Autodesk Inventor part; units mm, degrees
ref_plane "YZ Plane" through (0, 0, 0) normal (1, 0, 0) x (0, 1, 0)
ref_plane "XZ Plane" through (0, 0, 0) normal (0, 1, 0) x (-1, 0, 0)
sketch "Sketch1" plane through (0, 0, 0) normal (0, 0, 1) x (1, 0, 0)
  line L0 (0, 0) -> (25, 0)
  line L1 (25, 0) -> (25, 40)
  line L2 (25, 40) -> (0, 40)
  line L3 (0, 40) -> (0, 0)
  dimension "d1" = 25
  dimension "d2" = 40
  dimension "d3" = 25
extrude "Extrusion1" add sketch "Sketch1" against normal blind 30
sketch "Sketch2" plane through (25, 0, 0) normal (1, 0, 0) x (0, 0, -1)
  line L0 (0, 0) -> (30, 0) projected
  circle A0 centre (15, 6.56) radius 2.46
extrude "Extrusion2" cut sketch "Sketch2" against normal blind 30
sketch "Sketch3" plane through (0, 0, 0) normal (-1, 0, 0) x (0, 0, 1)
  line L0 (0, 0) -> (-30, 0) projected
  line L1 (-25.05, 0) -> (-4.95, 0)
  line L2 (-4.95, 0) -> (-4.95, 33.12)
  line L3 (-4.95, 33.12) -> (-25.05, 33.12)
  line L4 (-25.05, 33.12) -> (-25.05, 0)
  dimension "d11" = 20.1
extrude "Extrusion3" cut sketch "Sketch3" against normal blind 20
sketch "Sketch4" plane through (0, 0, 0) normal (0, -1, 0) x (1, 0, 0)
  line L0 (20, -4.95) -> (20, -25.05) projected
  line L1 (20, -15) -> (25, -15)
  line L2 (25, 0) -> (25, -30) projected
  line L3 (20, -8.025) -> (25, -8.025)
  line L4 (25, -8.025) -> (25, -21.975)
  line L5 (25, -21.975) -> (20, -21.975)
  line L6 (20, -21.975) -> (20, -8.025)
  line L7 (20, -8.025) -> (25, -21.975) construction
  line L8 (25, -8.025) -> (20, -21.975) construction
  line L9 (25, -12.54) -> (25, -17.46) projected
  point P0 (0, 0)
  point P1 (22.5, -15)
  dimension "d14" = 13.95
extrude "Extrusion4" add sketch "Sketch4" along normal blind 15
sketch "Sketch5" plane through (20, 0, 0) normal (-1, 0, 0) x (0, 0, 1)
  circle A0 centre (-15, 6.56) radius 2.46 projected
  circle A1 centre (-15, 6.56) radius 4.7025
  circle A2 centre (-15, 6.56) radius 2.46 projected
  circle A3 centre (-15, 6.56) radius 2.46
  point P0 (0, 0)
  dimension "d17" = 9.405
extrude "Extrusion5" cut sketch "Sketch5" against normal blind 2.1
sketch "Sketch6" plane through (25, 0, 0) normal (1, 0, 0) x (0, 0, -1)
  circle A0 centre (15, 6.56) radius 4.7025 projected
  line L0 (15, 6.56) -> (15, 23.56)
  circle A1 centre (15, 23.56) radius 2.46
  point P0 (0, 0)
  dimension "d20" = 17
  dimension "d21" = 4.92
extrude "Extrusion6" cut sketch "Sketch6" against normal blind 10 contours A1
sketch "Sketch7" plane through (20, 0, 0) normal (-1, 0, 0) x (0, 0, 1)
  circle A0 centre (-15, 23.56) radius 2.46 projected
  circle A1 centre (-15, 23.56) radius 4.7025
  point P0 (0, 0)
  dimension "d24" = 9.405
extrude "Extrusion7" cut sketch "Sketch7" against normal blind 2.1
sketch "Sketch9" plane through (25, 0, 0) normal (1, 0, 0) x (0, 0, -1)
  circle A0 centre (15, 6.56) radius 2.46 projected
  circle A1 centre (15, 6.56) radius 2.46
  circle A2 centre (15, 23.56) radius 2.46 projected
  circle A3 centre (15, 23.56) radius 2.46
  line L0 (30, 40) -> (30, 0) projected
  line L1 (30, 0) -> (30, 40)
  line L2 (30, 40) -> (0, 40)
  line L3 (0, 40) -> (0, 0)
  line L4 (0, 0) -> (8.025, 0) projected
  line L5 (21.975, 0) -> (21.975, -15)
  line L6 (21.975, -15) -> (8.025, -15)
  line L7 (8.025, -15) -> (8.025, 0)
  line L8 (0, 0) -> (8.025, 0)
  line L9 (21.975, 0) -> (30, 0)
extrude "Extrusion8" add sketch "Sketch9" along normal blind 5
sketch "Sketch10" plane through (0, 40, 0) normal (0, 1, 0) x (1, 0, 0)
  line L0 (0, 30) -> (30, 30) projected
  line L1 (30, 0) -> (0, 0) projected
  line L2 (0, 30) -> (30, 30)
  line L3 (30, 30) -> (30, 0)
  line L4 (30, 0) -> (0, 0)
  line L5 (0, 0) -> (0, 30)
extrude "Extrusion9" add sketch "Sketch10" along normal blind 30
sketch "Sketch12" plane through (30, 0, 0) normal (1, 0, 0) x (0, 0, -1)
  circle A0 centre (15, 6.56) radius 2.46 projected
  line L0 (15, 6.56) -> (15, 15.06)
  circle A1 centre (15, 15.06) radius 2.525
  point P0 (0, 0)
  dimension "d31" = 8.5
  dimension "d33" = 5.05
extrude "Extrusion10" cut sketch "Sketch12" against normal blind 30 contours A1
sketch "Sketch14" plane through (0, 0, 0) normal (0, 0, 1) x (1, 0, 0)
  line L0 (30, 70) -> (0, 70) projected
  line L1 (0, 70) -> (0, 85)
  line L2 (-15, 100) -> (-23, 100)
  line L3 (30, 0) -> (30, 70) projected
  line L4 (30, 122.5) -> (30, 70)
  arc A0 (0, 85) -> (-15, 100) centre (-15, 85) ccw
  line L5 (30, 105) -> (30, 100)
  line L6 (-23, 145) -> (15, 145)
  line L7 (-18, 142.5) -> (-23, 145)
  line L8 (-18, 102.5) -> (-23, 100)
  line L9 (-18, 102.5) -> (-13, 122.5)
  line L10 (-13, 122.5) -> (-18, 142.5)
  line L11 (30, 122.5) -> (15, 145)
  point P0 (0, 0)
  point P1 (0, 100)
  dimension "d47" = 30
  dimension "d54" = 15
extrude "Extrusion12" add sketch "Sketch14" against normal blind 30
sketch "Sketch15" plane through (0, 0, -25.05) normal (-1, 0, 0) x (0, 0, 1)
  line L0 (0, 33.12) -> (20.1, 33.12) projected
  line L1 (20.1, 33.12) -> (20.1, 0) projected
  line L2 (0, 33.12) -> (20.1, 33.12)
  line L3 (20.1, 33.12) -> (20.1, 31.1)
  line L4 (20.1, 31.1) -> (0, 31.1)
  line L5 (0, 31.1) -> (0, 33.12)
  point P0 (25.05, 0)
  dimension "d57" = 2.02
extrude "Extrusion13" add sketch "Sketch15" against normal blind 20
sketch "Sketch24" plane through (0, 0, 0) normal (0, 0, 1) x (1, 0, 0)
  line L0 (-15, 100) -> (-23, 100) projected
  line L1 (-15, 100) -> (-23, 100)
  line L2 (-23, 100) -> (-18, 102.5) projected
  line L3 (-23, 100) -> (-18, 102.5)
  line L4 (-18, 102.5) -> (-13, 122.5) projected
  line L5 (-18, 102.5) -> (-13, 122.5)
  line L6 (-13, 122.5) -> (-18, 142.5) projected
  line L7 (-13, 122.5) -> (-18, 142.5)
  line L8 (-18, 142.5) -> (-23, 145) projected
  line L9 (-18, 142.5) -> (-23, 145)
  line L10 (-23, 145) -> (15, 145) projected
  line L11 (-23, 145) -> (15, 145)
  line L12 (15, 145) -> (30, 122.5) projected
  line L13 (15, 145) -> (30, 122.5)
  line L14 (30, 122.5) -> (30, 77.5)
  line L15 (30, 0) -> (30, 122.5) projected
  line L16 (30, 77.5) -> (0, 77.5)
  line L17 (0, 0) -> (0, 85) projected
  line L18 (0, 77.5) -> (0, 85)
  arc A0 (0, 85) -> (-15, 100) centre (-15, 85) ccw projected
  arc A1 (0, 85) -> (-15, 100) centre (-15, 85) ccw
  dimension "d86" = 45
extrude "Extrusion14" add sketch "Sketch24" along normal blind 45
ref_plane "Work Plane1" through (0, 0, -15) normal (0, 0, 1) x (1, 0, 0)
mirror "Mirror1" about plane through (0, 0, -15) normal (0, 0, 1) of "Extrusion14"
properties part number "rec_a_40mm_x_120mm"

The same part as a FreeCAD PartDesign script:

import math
import FreeCAD as App
import Part
import Sketcher

V = App.Vector
Q = App.Units.Quantity


def add_polygon(sketch, points):
    """Adds a closed chain of lines whose ends are joined by coincident constraints."""
    first, n = sketch.GeometryCount, len(points)
    for a, b in zip(points, points[1:] + points[:1]):
        sketch.addGeometry(Part.LineSegment(App.Vector(*a, 0), App.Vector(*b, 0)), False)
    for i in range(n):
        sketch.addConstraint(Sketcher.Constraint("Coincident", first + i, 2, first + (i + 1) % n, 1))

doc = App.newDocument("Part")
body = doc.addObject("PartDesign::Body", "Body")

# Sketch on XY plane
sketch1 = body.newObject("Sketcher::SketchObject", "Sketch")
sketch1.AttachmentSupport = (doc.getObject("XY_Plane"), [""])
sketch1.MapMode = "FlatFace"
add_polygon(sketch1, [(0, 40), (0, 0), (25, 0), (25, 40)])  # lines 0-3
sketch1.addConstraint(Sketcher.Constraint("Vertical", 0))
sketch1.addConstraint(Sketcher.Constraint("Horizontal", 1))
sketch1.addConstraint(Sketcher.Constraint("Vertical", 2))
sketch1.addConstraint(Sketcher.Constraint("Horizontal", 3))
sketch1.addConstraint(Sketcher.Constraint("Coincident", 0, 2, -1, 1))
sketch1.addConstraint(Sketcher.Constraint("DistanceX", 1, 1, 1, 2, Q("25 mm")))
sketch1.addConstraint(Sketcher.Constraint("DistanceY", 0, 2, 0, 1, Q("40 mm")))
pad1 = body.newObject("PartDesign::Pad", "Pad")
pad1.Profile = sketch1
pad1.Length = 30
pad1.Reversed = True

# Sketch on YZ plane
sketch2 = body.newObject("Sketcher::SketchObject", "Sketch001")
sketch2.AttachmentSupport = (doc.getObject("YZ_Plane"), [""])
sketch2.MapMode = "FlatFace"
sketch2.AttachmentOffset = App.Placement(V(0, 0, 25), App.Rotation())
sketch2.addGeometry(Part.Circle(V(6.6, -15, 0), V(0, 0, 1), 2.5), False)
sketch2.addConstraint(Sketcher.Constraint("Diameter", 0, Q("4.92 mm")))
sketch2.addConstraint(Sketcher.Constraint("DistanceY", 0, 3, -1, 1, Q("15 mm")))
sketch2.addConstraint(Sketcher.Constraint("DistanceX", -1, 1, 0, 3, Q("6.56 mm")))
pocket1 = body.newObject("PartDesign::Pocket", "Pocket")
pocket1.Profile = sketch2
pocket1.Length = 30

# Sketch on YZ plane
sketch3 = body.newObject("Sketcher::SketchObject", "Sketch002")
sketch3.AttachmentSupport = (doc.getObject("YZ_Plane"), [""])
sketch3.MapMode = "FlatFace"
add_polygon(sketch3, [(0, -25), (0, -5), (33, -5), (33, -25)])  # lines 0-3
sketch3.addConstraint(Sketcher.Constraint("Vertical", 0))
sketch3.addConstraint(Sketcher.Constraint("Horizontal", 1))
sketch3.addConstraint(Sketcher.Constraint("Vertical", 2))
sketch3.addConstraint(Sketcher.Constraint("Horizontal", 3))
sketch3.addConstraint(Sketcher.Constraint("PointOnObject", 0, 2, -2))
sketch3.addConstraint(Sketcher.Constraint("DistanceY", 0, 1, 0, 2, Q("20.1 mm")))
sketch3.addConstraint(Sketcher.Constraint("DistanceX", 1, 1, 1, 2, Q("33.12 mm")))
sketch3.addConstraint(Sketcher.Constraint("DistanceY", 0, 2, -1, 1, Q("4.95 mm")))
pocket2 = body.newObject("PartDesign::Pocket", "Pocket001")
pocket2.Profile = sketch3
pocket2.Length = 20
pocket2.Reversed = True

# Sketch on XZ plane
sketch4 = body.newObject("Sketcher::SketchObject", "Sketch003")
sketch4.AttachmentSupport = (doc.getObject("XZ_Plane"), [""])
sketch4.MapMode = "FlatFace"
add_polygon(sketch4, [(25, -8), (20, -8), (20, -22), (25, -22)])  # lines 0-3
sketch4.addConstraint(Sketcher.Constraint("Horizontal", 0))
sketch4.addConstraint(Sketcher.Constraint("Vertical", 1))
sketch4.addConstraint(Sketcher.Constraint("Horizontal", 2))
sketch4.addConstraint(Sketcher.Constraint("Vertical", 3))
sketch4.addConstraint(Sketcher.Constraint("DistanceY", 1, 2, 1, 1, Q("13.95 mm")))
sketch4.addConstraint(Sketcher.Constraint("DistanceX", 0, 2, 0, 1, Q("5 mm")))
sketch4.addConstraint(Sketcher.Constraint("DistanceX", -1, 1, 0, 2, Q("20 mm")))
sketch4.addConstraint(Sketcher.Constraint("DistanceY", 0, 2, -1, 1, Q("8.025 mm")))
pad2 = body.newObject("PartDesign::Pad", "Pad001")
pad2.Profile = sketch4
pad2.Length = 15

# Sketch on YZ plane
sketch5 = body.newObject("Sketcher::SketchObject", "Sketch004")
sketch5.AttachmentSupport = (doc.getObject("YZ_Plane"), [""])
sketch5.MapMode = "FlatFace"
sketch5.AttachmentOffset = App.Placement(V(0, 0, 20), App.Rotation())
sketch5.addGeometry(Part.Circle(V(6.6, -15, 0), V(0, 0, 1), 4.7), False)
sketch5.addGeometry(Part.Circle(V(6.6, -15, 0), V(0, 0, 1), 2.5), False)
sketch5.addConstraint(Sketcher.Constraint("Coincident", 1, 3, 0, 3))
sketch5.addConstraint(Sketcher.Constraint("Diameter", 0, Q("9.405 mm")))
sketch5.addConstraint(Sketcher.Constraint("Diameter", 1, Q("4.92 mm")))
sketch5.addConstraint(Sketcher.Constraint("DistanceY", 0, 3, -1, 1, Q("15 mm")))
sketch5.addConstraint(Sketcher.Constraint("DistanceX", -1, 1, 0, 3, Q("6.56 mm")))
pocket3 = body.newObject("PartDesign::Pocket", "Pocket002")
pocket3.Profile = sketch5
pocket3.Length = 2.1
pocket3.Reversed = True

# Sketch on YZ plane
sketch6 = body.newObject("Sketcher::SketchObject", "Sketch005")
sketch6.AttachmentSupport = (doc.getObject("YZ_Plane"), [""])
sketch6.MapMode = "FlatFace"
sketch6.AttachmentOffset = App.Placement(V(0, 0, 25), App.Rotation())
sketch6.addGeometry(Part.Circle(V(23.6, -15, 0), V(0, 0, 1), 2.5), False)
sketch6.addConstraint(Sketcher.Constraint("Diameter", 0, Q("4.92 mm")))
sketch6.addConstraint(Sketcher.Constraint("DistanceY", 0, 3, -1, 1, Q("15 mm")))
sketch6.addConstraint(Sketcher.Constraint("DistanceX", -1, 1, 0, 3, Q("23.56 mm")))
pocket4 = body.newObject("PartDesign::Pocket", "Pocket003")
pocket4.Profile = sketch6
pocket4.Length = 10

# Sketch on YZ plane
sketch7 = body.newObject("Sketcher::SketchObject", "Sketch006")
sketch7.AttachmentSupport = (doc.getObject("YZ_Plane"), [""])
sketch7.MapMode = "FlatFace"
sketch7.AttachmentOffset = App.Placement(V(0, 0, 20), App.Rotation())
sketch7.addGeometry(Part.Circle(V(23.6, -15, 0), V(0, 0, 1), 4.7), False)
sketch7.addGeometry(Part.Circle(V(23.6, -15, 0), V(0, 0, 1), 2.5), False)
sketch7.addConstraint(Sketcher.Constraint("Coincident", 1, 3, 0, 3))
sketch7.addConstraint(Sketcher.Constraint("Diameter", 0, Q("9.405 mm")))
sketch7.addConstraint(Sketcher.Constraint("Diameter", 1, Q("4.92 mm")))
sketch7.addConstraint(Sketcher.Constraint("DistanceY", 0, 3, -1, 1, Q("15 mm")))
sketch7.addConstraint(Sketcher.Constraint("DistanceX", -1, 1, 0, 3, Q("23.56 mm")))
pocket5 = body.newObject("PartDesign::Pocket", "Pocket004")
pocket5.Profile = sketch7
pocket5.Length = 2.1
pocket5.Reversed = True

# Sketch on YZ plane
sketch8 = body.newObject("Sketcher::SketchObject", "Sketch007")
sketch8.AttachmentSupport = (doc.getObject("YZ_Plane"), [""])
sketch8.MapMode = "FlatFace"
sketch8.AttachmentOffset = App.Placement(V(0, 0, 25), App.Rotation())
add_polygon(sketch8, [(0, -30), (40, -30), (40, 0), (0, 0), (0, -8), (-15, -8), (-15, -22), (0, -22)])  # lines 0-7
sketch8.addGeometry(Part.Circle(V(6.6, -15, 0), V(0, 0, 1), 2.5), False)  # 8
sketch8.addGeometry(Part.Circle(V(23.6, -15, 0), V(0, 0, 1), 2.5), False)  # 9
sketch8.addConstraint(Sketcher.Constraint("Horizontal", 0))
sketch8.addConstraint(Sketcher.Constraint("Vertical", 1))
sketch8.addConstraint(Sketcher.Constraint("Horizontal", 2))
sketch8.addConstraint(Sketcher.Constraint("Vertical", 3))
sketch8.addConstraint(Sketcher.Constraint("Horizontal", 4))
sketch8.addConstraint(Sketcher.Constraint("Vertical", 5))
sketch8.addConstraint(Sketcher.Constraint("Horizontal", 6))
sketch8.addConstraint(Sketcher.Constraint("Vertical", 7))
sketch8.addConstraint(Sketcher.Constraint("Coincident", 2, 2, -1, 1))
sketch8.addConstraint(Sketcher.Constraint("Equal", 8, 9))
sketch8.addConstraint(Sketcher.Constraint("PointOnObject", 6, 2, -2))
sketch8.addConstraint(Sketcher.Constraint("Horizontal", 8, 3, 9, 3))
sketch8.addConstraint(Sketcher.Constraint("Equal", 3, 7))
sketch8.addConstraint(Sketcher.Constraint("Diameter", 8, Q("4.92 mm")))
sketch8.addConstraint(Sketcher.Constraint("DistanceX", 0, 1, 0, 2, Q("40 mm")))
sketch8.addConstraint(Sketcher.Constraint("DistanceX", 4, 2, 4, 1, Q("15 mm")))
sketch8.addConstraint(Sketcher.Constraint("DistanceY", 1, 1, 1, 2, Q("30 mm")))
sketch8.addConstraint(Sketcher.Constraint("DistanceY", 8, 3, -1, 1, Q("15 mm")))
sketch8.addConstraint(Sketcher.Constraint("DistanceX", 8, 3, 9, 3, Q("17 mm")))
sketch8.addConstraint(Sketcher.Constraint("DistanceY", 5, 2, 5, 1, Q("13.95 mm")))
sketch8.addConstraint(Sketcher.Constraint("DistanceX", -1, 1, 8, 3, Q("6.56 mm")))
pad3 = body.newObject("PartDesign::Pad", "Pad002")
pad3.Profile = sketch8
pad3.Length = 5

# Sketch on XZ plane
sketch9 = body.newObject("Sketcher::SketchObject", "Sketch008")
sketch9.AttachmentSupport = (doc.getObject("XZ_Plane"), [""])
sketch9.MapMode = "FlatFace"
sketch9.AttachmentOffset = App.Placement(V(0, 0, -40), App.Rotation())
add_polygon(sketch9, [(30, -30), (0, -30), (0, 0), (30, 0)])  # lines 0-3
sketch9.addConstraint(Sketcher.Constraint("Horizontal", 0))
sketch9.addConstraint(Sketcher.Constraint("Vertical", 1))
sketch9.addConstraint(Sketcher.Constraint("Horizontal", 2))
sketch9.addConstraint(Sketcher.Constraint("Vertical", 3))
sketch9.addConstraint(Sketcher.Constraint("Coincident", 1, 2, -1, 1))
sketch9.addConstraint(Sketcher.Constraint("Equal", 2, 1))
sketch9.addConstraint(Sketcher.Constraint("DistanceX", 0, 2, 0, 1, Q("30 mm")))
pad4 = body.newObject("PartDesign::Pad", "Pad003")
pad4.Profile = sketch9
pad4.Length = 30
pad4.Reversed = True

# Sketch on YZ plane
sketch10 = body.newObject("Sketcher::SketchObject", "Sketch009")
sketch10.AttachmentSupport = (doc.getObject("YZ_Plane"), [""])
sketch10.MapMode = "FlatFace"
sketch10.AttachmentOffset = App.Placement(V(0, 0, 30), App.Rotation())
sketch10.addGeometry(Part.Circle(V(15.1, -15, 0), V(0, 0, 1), 2.5), False)
sketch10.addConstraint(Sketcher.Constraint("Diameter", 0, Q("5.05 mm")))
sketch10.addConstraint(Sketcher.Constraint("DistanceY", 0, 3, -1, 1, Q("15 mm")))
sketch10.addConstraint(Sketcher.Constraint("DistanceX", -1, 1, 0, 3, Q("15.06 mm")))
pocket6 = body.newObject("PartDesign::Pocket", "Pocket005")
pocket6.Profile = sketch10
pocket6.Length = 30

# Sketch on XY plane
sketch11 = body.newObject("Sketcher::SketchObject", "Sketch010")
sketch11.AttachmentSupport = (doc.getObject("XY_Plane"), [""])
sketch11.MapMode = "FlatFace"
sketch11.addGeometry(Part.LineSegment(V(0, 70, 0), V(30, 70, 0)), False)
sketch11.addGeometry(Part.LineSegment(V(30, 70, 0), V(30, 122, 0)), False)
sketch11.addGeometry(Part.LineSegment(V(30, 122, 0), V(15, 145, 0)), False)
sketch11.addGeometry(Part.LineSegment(V(15, 145, 0), V(-23, 145, 0)), False)
sketch11.addGeometry(Part.LineSegment(V(-23, 145, 0), V(-18, 142, 0)), False)
sketch11.addGeometry(Part.LineSegment(V(-18, 142, 0), V(-13, 122, 0)), False)
sketch11.addGeometry(Part.LineSegment(V(-13, 122, 0), V(-18, 102, 0)), False)
sketch11.addGeometry(Part.LineSegment(V(-18, 102, 0), V(-23, 100, 0)), False)
sketch11.addGeometry(Part.LineSegment(V(-23, 100, 0), V(-15, 100, 0)), False)
sketch11.addGeometry(Part.ArcOfCircle(Part.Circle(V(-15, 85, 0), V(0, 0, 1), 15), math.radians(0), math.radians(90)), False)
sketch11.addGeometry(Part.LineSegment(V(0, 85, 0), V(0, 70, 0)), False)
sketch11.addConstraint(Sketcher.Constraint("Coincident", 0, 2, 1, 1))
sketch11.addConstraint(Sketcher.Constraint("Coincident", 1, 2, 2, 1))
sketch11.addConstraint(Sketcher.Constraint("Coincident", 2, 2, 3, 1))
sketch11.addConstraint(Sketcher.Constraint("Coincident", 3, 2, 4, 1))
sketch11.addConstraint(Sketcher.Constraint("Coincident", 4, 2, 5, 1))
sketch11.addConstraint(Sketcher.Constraint("Coincident", 5, 2, 6, 1))
sketch11.addConstraint(Sketcher.Constraint("Coincident", 6, 2, 7, 1))
sketch11.addConstraint(Sketcher.Constraint("Coincident", 7, 2, 8, 1))
sketch11.addConstraint(Sketcher.Constraint("Tangent", 8, 2, 9, 2))
sketch11.addConstraint(Sketcher.Constraint("Tangent", 9, 1, 10, 1))
sketch11.addConstraint(Sketcher.Constraint("Coincident", 10, 2, 0, 1))
sketch11.addConstraint(Sketcher.Constraint("Horizontal", 0))
sketch11.addConstraint(Sketcher.Constraint("Vertical", 1))
sketch11.addConstraint(Sketcher.Constraint("Horizontal", 3))
sketch11.addConstraint(Sketcher.Constraint("Horizontal", 8))
sketch11.addConstraint(Sketcher.Constraint("Vertical", 10))
sketch11.addConstraint(Sketcher.Constraint("PointOnObject", 9, 1, -2))
sketch11.addConstraint(Sketcher.Constraint("Horizontal", 1, 2, 5, 2))
sketch11.addConstraint(Sketcher.Constraint("Vertical", 4, 2, 6, 2))
sketch11.addConstraint(Sketcher.Constraint("Vertical", 3, 2, 7, 2))
sketch11.addConstraint(Sketcher.Constraint("Equal", 5, 6))
sketch11.addConstraint(Sketcher.Constraint("Equal", 4, 7))
sketch11.addConstraint(Sketcher.Constraint("Radius", 9, Q("15 mm")))
sketch11.addConstraint(Sketcher.Constraint("DistanceX", 0, 1, 0, 2, Q("30 mm")))
sketch11.addConstraint(Sketcher.Constraint("DistanceY", 10, 2, 10, 1, Q("15 mm")))
sketch11.addConstraint(Sketcher.Constraint("DistanceX", -1, 1, 2, 2, Q("15 mm")))
sketch11.addConstraint(Sketcher.Constraint("DistanceX", 3, 2, 3, 1, Q("38 mm")))
sketch11.addConstraint(Sketcher.Constraint("DistanceY", 1, 1, 1, 2, Q("52.5 mm")))
sketch11.addConstraint(Sketcher.Constraint("DistanceY", -1, 1, 9, 3, Q("85 mm")))
sketch11.addConstraint(Sketcher.Constraint("DistanceX", 4, 2, -1, 1, Q("18 mm")))
sketch11.addConstraint(Sketcher.Constraint("DistanceX", 5, 2, -1, 1, Q("13 mm")))
sketch11.addConstraint(Sketcher.Constraint("DistanceY", 1, 2, 4, 2, Q("20 mm")))
pad5 = body.newObject("PartDesign::Pad", "Pad004")
pad5.Profile = sketch11
pad5.Length = 30
pad5.Reversed = True

# Sketch on YZ plane
sketch12 = body.newObject("Sketcher::SketchObject", "Sketch011")
sketch12.AttachmentSupport = (doc.getObject("YZ_Plane"), [""])
sketch12.MapMode = "FlatFace"
add_polygon(sketch12, [(33.1, -5), (33.1, -25.1), (31.1, -25.1), (31.1, -5)])  # lines 0-3
sketch12.addConstraint(Sketcher.Constraint("Vertical", 0))
sketch12.addConstraint(Sketcher.Constraint("Horizontal", 1))
sketch12.addConstraint(Sketcher.Constraint("Vertical", 2))
sketch12.addConstraint(Sketcher.Constraint("Horizontal", 3))
sketch12.addConstraint(Sketcher.Constraint("DistanceX", 1, 2, 1, 1, Q("2.02 mm")))
sketch12.addConstraint(Sketcher.Constraint("DistanceY", 0, 2, 0, 1, Q("20.1 mm")))
sketch12.addConstraint(Sketcher.Constraint("DistanceX", -1, 1, 1, 2, Q("31.1 mm")))
sketch12.addConstraint(Sketcher.Constraint("DistanceY", 0, 2, -1, 1, Q("25.05 mm")))
pad6 = body.newObject("PartDesign::Pad", "Pad005")
pad6.Profile = sketch12
pad6.Length = 20

# Sketch on XY plane
sketch13 = body.newObject("Sketcher::SketchObject", "Sketch012")
sketch13.AttachmentSupport = (doc.getObject("XY_Plane"), [""])
sketch13.MapMode = "FlatFace"
sketch13.addGeometry(Part.LineSegment(V(-23, 100, 0), V(-15, 100, 0)), False)
sketch13.addGeometry(Part.ArcOfCircle(Part.Circle(V(-15, 85, 0), V(0, 0, 1), 15), math.radians(0), math.radians(90)), False)
sketch13.addGeometry(Part.LineSegment(V(0, 85, 0), V(0, 78, 0)), False)
sketch13.addGeometry(Part.LineSegment(V(0, 78, 0), V(30, 78, 0)), False)
sketch13.addGeometry(Part.LineSegment(V(30, 78, 0), V(30, 122, 0)), False)
sketch13.addGeometry(Part.LineSegment(V(30, 122, 0), V(15, 145, 0)), False)
sketch13.addGeometry(Part.LineSegment(V(15, 145, 0), V(-23, 145, 0)), False)
sketch13.addGeometry(Part.LineSegment(V(-23, 145, 0), V(-18, 142, 0)), False)
sketch13.addGeometry(Part.LineSegment(V(-18, 142, 0), V(-13, 122, 0)), False)
sketch13.addGeometry(Part.LineSegment(V(-13, 122, 0), V(-18, 102, 0)), False)
sketch13.addGeometry(Part.LineSegment(V(-18, 102, 0), V(-23, 100, 0)), False)
sketch13.addConstraint(Sketcher.Constraint("Tangent", 0, 2, 1, 2))
sketch13.addConstraint(Sketcher.Constraint("Tangent", 1, 1, 2, 1))
sketch13.addConstraint(Sketcher.Constraint("Coincident", 2, 2, 3, 1))
sketch13.addConstraint(Sketcher.Constraint("Coincident", 3, 2, 4, 1))
sketch13.addConstraint(Sketcher.Constraint("Coincident", 4, 2, 5, 1))
sketch13.addConstraint(Sketcher.Constraint("Coincident", 5, 2, 6, 1))
sketch13.addConstraint(Sketcher.Constraint("Coincident", 6, 2, 7, 1))
sketch13.addConstraint(Sketcher.Constraint("Coincident", 7, 2, 8, 1))
sketch13.addConstraint(Sketcher.Constraint("Coincident", 8, 2, 9, 1))
sketch13.addConstraint(Sketcher.Constraint("Coincident", 9, 2, 10, 1))
sketch13.addConstraint(Sketcher.Constraint("Coincident", 10, 2, 0, 1))
sketch13.addConstraint(Sketcher.Constraint("Horizontal", 0))
sketch13.addConstraint(Sketcher.Constraint("Vertical", 2))
sketch13.addConstraint(Sketcher.Constraint("Horizontal", 3))
sketch13.addConstraint(Sketcher.Constraint("Vertical", 4))
sketch13.addConstraint(Sketcher.Constraint("Horizontal", 6))
sketch13.addConstraint(Sketcher.Constraint("PointOnObject", 1, 1, -2))
sketch13.addConstraint(Sketcher.Constraint("Horizontal", 4, 2, 8, 2))
sketch13.addConstraint(Sketcher.Constraint("Vertical", 7, 2, 9, 2))
sketch13.addConstraint(Sketcher.Constraint("Vertical", 6, 2, 10, 2))
sketch13.addConstraint(Sketcher.Constraint("Equal", 8, 9))
sketch13.addConstraint(Sketcher.Constraint("Equal", 7, 10))
sketch13.addConstraint(Sketcher.Constraint("DistanceY", 4, 1, 4, 2, Q("45 mm")))
sketch13.addConstraint(Sketcher.Constraint("Radius", 1, Q("15 mm")))
sketch13.addConstraint(Sketcher.Constraint("DistanceX", 1, 3, 3, 2, Q("45 mm")))
sketch13.addConstraint(Sketcher.Constraint("DistanceY", 0, 2, 5, 2, Q("45 mm")))
sketch13.addConstraint(Sketcher.Constraint("DistanceX", 0, 1, 0, 2, Q("8 mm")))
sketch13.addConstraint(Sketcher.Constraint("DistanceX", 6, 2, 6, 1, Q("38 mm")))
sketch13.addConstraint(Sketcher.Constraint("DistanceY", -1, 1, 1, 3, Q("85 mm")))
sketch13.addConstraint(Sketcher.Constraint("DistanceX", 7, 2, -1, 1, Q("18 mm")))
sketch13.addConstraint(Sketcher.Constraint("DistanceX", 8, 2, -1, 1, Q("13 mm")))
sketch13.addConstraint(Sketcher.Constraint("DistanceY", 4, 2, 7, 2, Q("20 mm")))
pad7 = body.newObject("PartDesign::Pad", "Pad006")
pad7.Profile = sketch13
pad7.Length = 45
doc.recompute()

datumplane = body.newObject("PartDesign::Plane", "DatumPlane")
datumplane.AttachmentSupport = (doc.getObject("XY_Plane"), [""])
datumplane.MapMode = "FlatFace"
datumplane.AttachmentOffset = App.Placement(V(0, 0, -15), App.Rotation())
mirrored = body.newObject("PartDesign::Mirrored", "Mirrored")
mirrored.Originals = [pad7]
mirrored.MirrorPlane = (datumplane, [""])
body.Tip = mirrored

doc.recompute()
